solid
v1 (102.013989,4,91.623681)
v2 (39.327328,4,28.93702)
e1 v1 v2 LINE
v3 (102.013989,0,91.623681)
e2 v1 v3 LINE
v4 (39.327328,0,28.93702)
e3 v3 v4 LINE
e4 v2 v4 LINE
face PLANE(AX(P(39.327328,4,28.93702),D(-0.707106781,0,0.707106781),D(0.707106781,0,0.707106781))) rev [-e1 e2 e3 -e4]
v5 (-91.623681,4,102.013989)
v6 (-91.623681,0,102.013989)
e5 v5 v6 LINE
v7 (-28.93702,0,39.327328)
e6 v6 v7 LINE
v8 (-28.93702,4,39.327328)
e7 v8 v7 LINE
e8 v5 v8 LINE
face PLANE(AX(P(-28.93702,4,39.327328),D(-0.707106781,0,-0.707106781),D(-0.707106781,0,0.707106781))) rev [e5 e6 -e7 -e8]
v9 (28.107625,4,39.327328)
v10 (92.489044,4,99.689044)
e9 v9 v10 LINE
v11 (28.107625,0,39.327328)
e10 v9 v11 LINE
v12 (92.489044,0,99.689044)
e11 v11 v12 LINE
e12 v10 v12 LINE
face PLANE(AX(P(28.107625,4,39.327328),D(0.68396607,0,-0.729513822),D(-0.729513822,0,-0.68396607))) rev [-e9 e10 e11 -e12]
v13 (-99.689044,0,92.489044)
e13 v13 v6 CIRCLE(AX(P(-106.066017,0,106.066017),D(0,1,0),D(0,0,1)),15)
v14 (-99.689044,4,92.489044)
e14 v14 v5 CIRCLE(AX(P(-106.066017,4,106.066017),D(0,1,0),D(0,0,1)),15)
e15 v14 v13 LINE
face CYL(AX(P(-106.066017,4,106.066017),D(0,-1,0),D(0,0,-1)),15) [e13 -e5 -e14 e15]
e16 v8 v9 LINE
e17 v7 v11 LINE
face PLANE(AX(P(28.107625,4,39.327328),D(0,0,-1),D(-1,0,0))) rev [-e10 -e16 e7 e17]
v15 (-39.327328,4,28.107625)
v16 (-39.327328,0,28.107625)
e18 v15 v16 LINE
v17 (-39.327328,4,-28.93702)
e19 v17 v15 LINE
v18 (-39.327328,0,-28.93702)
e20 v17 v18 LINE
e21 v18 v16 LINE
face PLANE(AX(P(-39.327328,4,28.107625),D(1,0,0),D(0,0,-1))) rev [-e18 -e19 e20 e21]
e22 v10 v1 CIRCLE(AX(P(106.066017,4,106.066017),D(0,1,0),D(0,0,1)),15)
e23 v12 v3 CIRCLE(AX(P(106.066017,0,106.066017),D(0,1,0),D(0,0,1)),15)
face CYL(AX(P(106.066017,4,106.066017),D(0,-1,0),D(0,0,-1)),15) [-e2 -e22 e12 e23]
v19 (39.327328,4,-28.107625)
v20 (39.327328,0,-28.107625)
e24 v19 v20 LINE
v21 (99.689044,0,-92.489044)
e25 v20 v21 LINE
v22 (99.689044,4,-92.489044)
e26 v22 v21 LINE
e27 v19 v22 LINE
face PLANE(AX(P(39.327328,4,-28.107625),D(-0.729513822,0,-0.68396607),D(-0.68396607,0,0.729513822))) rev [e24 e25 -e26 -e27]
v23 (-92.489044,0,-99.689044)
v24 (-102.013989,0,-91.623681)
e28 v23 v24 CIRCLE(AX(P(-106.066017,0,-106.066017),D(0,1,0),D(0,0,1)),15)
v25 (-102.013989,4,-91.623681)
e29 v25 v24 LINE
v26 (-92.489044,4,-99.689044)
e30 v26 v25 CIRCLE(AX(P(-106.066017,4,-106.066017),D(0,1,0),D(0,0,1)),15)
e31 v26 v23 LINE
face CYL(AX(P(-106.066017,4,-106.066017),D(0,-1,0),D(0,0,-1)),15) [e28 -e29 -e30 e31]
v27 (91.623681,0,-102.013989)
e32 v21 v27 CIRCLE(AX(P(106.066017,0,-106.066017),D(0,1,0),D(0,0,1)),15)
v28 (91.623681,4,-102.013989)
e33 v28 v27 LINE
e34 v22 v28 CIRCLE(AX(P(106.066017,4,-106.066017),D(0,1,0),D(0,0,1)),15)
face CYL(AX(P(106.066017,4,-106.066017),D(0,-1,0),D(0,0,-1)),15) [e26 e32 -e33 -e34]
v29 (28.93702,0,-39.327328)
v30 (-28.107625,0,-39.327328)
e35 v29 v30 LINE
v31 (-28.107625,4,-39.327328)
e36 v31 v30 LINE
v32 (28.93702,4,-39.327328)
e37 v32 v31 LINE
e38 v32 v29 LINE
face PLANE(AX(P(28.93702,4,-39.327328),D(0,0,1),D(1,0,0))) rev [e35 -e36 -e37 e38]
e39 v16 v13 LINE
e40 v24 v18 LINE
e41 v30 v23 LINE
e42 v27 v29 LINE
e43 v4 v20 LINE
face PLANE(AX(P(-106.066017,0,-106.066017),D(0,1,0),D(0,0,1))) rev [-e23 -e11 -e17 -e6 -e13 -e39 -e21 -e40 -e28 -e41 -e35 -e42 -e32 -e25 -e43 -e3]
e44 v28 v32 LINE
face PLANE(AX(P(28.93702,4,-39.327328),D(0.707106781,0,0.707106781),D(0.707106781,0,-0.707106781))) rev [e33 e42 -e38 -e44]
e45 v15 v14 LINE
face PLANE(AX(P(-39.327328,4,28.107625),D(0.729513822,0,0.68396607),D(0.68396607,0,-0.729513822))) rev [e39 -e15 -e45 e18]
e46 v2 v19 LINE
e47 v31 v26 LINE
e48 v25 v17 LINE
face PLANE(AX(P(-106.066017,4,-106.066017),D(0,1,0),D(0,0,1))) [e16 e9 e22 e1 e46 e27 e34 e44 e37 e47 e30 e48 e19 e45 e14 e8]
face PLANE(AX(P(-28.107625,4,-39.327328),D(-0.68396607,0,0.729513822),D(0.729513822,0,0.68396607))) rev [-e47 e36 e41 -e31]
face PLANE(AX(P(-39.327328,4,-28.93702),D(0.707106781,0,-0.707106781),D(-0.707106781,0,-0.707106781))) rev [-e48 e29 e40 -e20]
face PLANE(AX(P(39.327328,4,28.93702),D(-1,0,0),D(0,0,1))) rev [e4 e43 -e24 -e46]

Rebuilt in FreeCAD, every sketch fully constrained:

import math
import FreeCAD as App
import Part
import Sketcher

V = App.Vector
Q = App.Units.Quantity

doc = App.newDocument("Part")
body = doc.addObject("PartDesign::Body", "Body")

# Sketch on XZ plane
sketch1 = body.newObject("Sketcher::SketchObject", "Sketch")
sketch1.AttachmentSupport = (doc.getObject("XZ_Plane"), [""])
sketch1.MapMode = "FlatFace"
sketch1.addGeometry(Part.LineSegment(V(-29, 39, 0), V(28, 39, 0)), False)
sketch1.addGeometry(Part.LineSegment(V(28, 39, 0), V(92, 100, 0)), False)
sketch1.addGeometry(Part.ArcOfCircle(Part.Circle(V(106, 106, 0), V(0, 0, 1), 15), math.radians(-106), math.radians(205)), False)
sketch1.addGeometry(Part.LineSegment(V(102, 92, 0), V(39, 29, 0)), False)
sketch1.addGeometry(Part.LineSegment(V(39, 29, 0), V(39, -28, 0)), False)
sketch1.addGeometry(Part.LineSegment(V(39, -28, 0), V(100, -92, 0)), False)
sketch1.addGeometry(Part.ArcOfCircle(Part.Circle(V(106, -106, 0), V(0, 0, 1), 15), math.radians(164), math.radians(475)), False)
sketch1.addGeometry(Part.LineSegment(V(92, -102, 0), V(29, -39, 0)), False)
sketch1.addGeometry(Part.LineSegment(V(29, -39, 0), V(-28, -39, 0)), False)
sketch1.addGeometry(Part.LineSegment(V(-28, -39, 0), V(-92, -100, 0)), False)
sketch1.addGeometry(Part.ArcOfCircle(Part.Circle(V(-106, -106, 0), V(0, 0, 1), 15), math.radians(74), math.radians(385)), False)
sketch1.addGeometry(Part.LineSegment(V(-102, -92, 0), V(-39, -29, 0)), False)
sketch1.addGeometry(Part.LineSegment(V(-39, -29, 0), V(-39, 28, 0)), False)
sketch1.addGeometry(Part.LineSegment(V(-39, 28, 0), V(-100, 92, 0)), False)
sketch1.addGeometry(Part.ArcOfCircle(Part.Circle(V(-106, 106, 0), V(0, 0, 1), 15), math.radians(-16), math.radians(295)), False)
sketch1.addGeometry(Part.LineSegment(V(-92, 102, 0), V(-29, 39, 0)), False)
sketch1.addConstraint(Sketcher.Constraint("Coincident", 0, 2, 1, 1))
sketch1.addConstraint(Sketcher.Constraint("Coincident", 1, 2, 2, 2))
sketch1.addConstraint(Sketcher.Constraint("Coincident", 2, 1, 3, 1))
sketch1.addConstraint(Sketcher.Constraint("Coincident", 3, 2, 4, 1))
sketch1.addConstraint(Sketcher.Constraint("Coincident", 4, 2, 5, 1))
sketch1.addConstraint(Sketcher.Constraint("Coincident", 5, 2, 6, 2))
sketch1.addConstraint(Sketcher.Constraint("Coincident", 6, 1, 7, 1))
sketch1.addConstraint(Sketcher.Constraint("Coincident", 7, 2, 8, 1))
sketch1.addConstraint(Sketcher.Constraint("Coincident", 8, 2, 9, 1))
sketch1.addConstraint(Sketcher.Constraint("Coincident", 9, 2, 10, 2))
sketch1.addConstraint(Sketcher.Constraint("Coincident", 10, 1, 11, 1))
sketch1.addConstraint(Sketcher.Constraint("Coincident", 11, 2, 12, 1))
sketch1.addConstraint(Sketcher.Constraint("Coincident", 12, 2, 13, 1))
sketch1.addConstraint(Sketcher.Constraint("Coincident", 13, 2, 14, 2))
sketch1.addConstraint(Sketcher.Constraint("Coincident", 14, 1, 15, 1))
sketch1.addConstraint(Sketcher.Constraint("Coincident", 15, 2, 0, 1))
sketch1.addConstraint(Sketcher.Constraint("Horizontal", 0))
sketch1.addConstraint(Sketcher.Constraint("Vertical", 4))
sketch1.addConstraint(Sketcher.Constraint("Horizontal", 8))
sketch1.addConstraint(Sketcher.Constraint("Vertical", 12))
sketch1.addConstraint(Sketcher.Constraint("Equal", 2, 6))
sketch1.addConstraint(Sketcher.Constraint("Equal", 6, 10))
sketch1.addConstraint(Sketcher.Constraint("Equal", 10, 14))
sketch1.addConstraint(Sketcher.Constraint("Symmetric", 2, 3, 10, 3, -1, 1))
sketch1.addConstraint(Sketcher.Constraint("Symmetric", 6, 3, 14, 3, -1, 1))
sketch1.addConstraint(Sketcher.Constraint("Symmetric", 0, 2, 8, 2, -1, 1))
sketch1.addConstraint(Sketcher.Constraint("Symmetric", 3, 2, 11, 2, -1, 1))
sketch1.addConstraint(Sketcher.Constraint("Symmetric", 6, 3, 10, 3, -2))
sketch1.addConstraint(Sketcher.Constraint("Perpendicular", 1, 5))
sketch1.addConstraint(Sketcher.Constraint("Perpendicular", 3, 7))
sketch1.addConstraint(Sketcher.Constraint("Perpendicular", 5, 9))
sketch1.addConstraint(Sketcher.Constraint("Perpendicular", 7, 11))
sketch1.addConstraint(Sketcher.Constraint("Perpendicular", 9, 13))
sketch1.addConstraint(Sketcher.Constraint("Perpendicular", 11, 15))
sketch1.addConstraint(Sketcher.Constraint("Equal", 0, 8))
sketch1.addConstraint(Sketcher.Constraint("Equal", 8, 4))
sketch1.addConstraint(Sketcher.Constraint("Equal", 4, 12))
sketch1.addConstraint(Sketcher.Constraint("Equal", 1, 5))
sketch1.addConstraint(Sketcher.Constraint("Equal", 3, 7))
sketch1.addConstraint(Sketcher.Constraint("Radius", 2, Q("15 mm")))
sketch1.addConstraint(Sketcher.Constraint("Angle", 3, Q("-135 deg")))
sketch1.addConstraint(Sketcher.Constraint("Distance", 1, Q("88.2525 mm")))
sketch1.addConstraint(Sketcher.Constraint("DistanceY", 6, 3, 2, 1, Q("197.689698 mm")))
sketch1.addConstraint(Sketcher.Constraint("DistanceX", 0, 1, 0, 2, Q("57.044645 mm")))
sketch1.addConstraint(Sketcher.Constraint("DistanceY", -1, 1, 0, 2, Q("39.327328 mm")))
sketch1.addConstraint(Sketcher.Constraint("DistanceX", -1, 1, 2, 1, Q("102.013989 mm")))
sketch1.addConstraint(Sketcher.Constraint("DistanceY", -1, 1, 2, 1, Q("91.623681 mm")))
pad1 = body.newObject("PartDesign::Pad", "Pad")
pad1.Profile = sketch1
pad1.Length = 4
pad1.Reversed = True

doc.recompute()
